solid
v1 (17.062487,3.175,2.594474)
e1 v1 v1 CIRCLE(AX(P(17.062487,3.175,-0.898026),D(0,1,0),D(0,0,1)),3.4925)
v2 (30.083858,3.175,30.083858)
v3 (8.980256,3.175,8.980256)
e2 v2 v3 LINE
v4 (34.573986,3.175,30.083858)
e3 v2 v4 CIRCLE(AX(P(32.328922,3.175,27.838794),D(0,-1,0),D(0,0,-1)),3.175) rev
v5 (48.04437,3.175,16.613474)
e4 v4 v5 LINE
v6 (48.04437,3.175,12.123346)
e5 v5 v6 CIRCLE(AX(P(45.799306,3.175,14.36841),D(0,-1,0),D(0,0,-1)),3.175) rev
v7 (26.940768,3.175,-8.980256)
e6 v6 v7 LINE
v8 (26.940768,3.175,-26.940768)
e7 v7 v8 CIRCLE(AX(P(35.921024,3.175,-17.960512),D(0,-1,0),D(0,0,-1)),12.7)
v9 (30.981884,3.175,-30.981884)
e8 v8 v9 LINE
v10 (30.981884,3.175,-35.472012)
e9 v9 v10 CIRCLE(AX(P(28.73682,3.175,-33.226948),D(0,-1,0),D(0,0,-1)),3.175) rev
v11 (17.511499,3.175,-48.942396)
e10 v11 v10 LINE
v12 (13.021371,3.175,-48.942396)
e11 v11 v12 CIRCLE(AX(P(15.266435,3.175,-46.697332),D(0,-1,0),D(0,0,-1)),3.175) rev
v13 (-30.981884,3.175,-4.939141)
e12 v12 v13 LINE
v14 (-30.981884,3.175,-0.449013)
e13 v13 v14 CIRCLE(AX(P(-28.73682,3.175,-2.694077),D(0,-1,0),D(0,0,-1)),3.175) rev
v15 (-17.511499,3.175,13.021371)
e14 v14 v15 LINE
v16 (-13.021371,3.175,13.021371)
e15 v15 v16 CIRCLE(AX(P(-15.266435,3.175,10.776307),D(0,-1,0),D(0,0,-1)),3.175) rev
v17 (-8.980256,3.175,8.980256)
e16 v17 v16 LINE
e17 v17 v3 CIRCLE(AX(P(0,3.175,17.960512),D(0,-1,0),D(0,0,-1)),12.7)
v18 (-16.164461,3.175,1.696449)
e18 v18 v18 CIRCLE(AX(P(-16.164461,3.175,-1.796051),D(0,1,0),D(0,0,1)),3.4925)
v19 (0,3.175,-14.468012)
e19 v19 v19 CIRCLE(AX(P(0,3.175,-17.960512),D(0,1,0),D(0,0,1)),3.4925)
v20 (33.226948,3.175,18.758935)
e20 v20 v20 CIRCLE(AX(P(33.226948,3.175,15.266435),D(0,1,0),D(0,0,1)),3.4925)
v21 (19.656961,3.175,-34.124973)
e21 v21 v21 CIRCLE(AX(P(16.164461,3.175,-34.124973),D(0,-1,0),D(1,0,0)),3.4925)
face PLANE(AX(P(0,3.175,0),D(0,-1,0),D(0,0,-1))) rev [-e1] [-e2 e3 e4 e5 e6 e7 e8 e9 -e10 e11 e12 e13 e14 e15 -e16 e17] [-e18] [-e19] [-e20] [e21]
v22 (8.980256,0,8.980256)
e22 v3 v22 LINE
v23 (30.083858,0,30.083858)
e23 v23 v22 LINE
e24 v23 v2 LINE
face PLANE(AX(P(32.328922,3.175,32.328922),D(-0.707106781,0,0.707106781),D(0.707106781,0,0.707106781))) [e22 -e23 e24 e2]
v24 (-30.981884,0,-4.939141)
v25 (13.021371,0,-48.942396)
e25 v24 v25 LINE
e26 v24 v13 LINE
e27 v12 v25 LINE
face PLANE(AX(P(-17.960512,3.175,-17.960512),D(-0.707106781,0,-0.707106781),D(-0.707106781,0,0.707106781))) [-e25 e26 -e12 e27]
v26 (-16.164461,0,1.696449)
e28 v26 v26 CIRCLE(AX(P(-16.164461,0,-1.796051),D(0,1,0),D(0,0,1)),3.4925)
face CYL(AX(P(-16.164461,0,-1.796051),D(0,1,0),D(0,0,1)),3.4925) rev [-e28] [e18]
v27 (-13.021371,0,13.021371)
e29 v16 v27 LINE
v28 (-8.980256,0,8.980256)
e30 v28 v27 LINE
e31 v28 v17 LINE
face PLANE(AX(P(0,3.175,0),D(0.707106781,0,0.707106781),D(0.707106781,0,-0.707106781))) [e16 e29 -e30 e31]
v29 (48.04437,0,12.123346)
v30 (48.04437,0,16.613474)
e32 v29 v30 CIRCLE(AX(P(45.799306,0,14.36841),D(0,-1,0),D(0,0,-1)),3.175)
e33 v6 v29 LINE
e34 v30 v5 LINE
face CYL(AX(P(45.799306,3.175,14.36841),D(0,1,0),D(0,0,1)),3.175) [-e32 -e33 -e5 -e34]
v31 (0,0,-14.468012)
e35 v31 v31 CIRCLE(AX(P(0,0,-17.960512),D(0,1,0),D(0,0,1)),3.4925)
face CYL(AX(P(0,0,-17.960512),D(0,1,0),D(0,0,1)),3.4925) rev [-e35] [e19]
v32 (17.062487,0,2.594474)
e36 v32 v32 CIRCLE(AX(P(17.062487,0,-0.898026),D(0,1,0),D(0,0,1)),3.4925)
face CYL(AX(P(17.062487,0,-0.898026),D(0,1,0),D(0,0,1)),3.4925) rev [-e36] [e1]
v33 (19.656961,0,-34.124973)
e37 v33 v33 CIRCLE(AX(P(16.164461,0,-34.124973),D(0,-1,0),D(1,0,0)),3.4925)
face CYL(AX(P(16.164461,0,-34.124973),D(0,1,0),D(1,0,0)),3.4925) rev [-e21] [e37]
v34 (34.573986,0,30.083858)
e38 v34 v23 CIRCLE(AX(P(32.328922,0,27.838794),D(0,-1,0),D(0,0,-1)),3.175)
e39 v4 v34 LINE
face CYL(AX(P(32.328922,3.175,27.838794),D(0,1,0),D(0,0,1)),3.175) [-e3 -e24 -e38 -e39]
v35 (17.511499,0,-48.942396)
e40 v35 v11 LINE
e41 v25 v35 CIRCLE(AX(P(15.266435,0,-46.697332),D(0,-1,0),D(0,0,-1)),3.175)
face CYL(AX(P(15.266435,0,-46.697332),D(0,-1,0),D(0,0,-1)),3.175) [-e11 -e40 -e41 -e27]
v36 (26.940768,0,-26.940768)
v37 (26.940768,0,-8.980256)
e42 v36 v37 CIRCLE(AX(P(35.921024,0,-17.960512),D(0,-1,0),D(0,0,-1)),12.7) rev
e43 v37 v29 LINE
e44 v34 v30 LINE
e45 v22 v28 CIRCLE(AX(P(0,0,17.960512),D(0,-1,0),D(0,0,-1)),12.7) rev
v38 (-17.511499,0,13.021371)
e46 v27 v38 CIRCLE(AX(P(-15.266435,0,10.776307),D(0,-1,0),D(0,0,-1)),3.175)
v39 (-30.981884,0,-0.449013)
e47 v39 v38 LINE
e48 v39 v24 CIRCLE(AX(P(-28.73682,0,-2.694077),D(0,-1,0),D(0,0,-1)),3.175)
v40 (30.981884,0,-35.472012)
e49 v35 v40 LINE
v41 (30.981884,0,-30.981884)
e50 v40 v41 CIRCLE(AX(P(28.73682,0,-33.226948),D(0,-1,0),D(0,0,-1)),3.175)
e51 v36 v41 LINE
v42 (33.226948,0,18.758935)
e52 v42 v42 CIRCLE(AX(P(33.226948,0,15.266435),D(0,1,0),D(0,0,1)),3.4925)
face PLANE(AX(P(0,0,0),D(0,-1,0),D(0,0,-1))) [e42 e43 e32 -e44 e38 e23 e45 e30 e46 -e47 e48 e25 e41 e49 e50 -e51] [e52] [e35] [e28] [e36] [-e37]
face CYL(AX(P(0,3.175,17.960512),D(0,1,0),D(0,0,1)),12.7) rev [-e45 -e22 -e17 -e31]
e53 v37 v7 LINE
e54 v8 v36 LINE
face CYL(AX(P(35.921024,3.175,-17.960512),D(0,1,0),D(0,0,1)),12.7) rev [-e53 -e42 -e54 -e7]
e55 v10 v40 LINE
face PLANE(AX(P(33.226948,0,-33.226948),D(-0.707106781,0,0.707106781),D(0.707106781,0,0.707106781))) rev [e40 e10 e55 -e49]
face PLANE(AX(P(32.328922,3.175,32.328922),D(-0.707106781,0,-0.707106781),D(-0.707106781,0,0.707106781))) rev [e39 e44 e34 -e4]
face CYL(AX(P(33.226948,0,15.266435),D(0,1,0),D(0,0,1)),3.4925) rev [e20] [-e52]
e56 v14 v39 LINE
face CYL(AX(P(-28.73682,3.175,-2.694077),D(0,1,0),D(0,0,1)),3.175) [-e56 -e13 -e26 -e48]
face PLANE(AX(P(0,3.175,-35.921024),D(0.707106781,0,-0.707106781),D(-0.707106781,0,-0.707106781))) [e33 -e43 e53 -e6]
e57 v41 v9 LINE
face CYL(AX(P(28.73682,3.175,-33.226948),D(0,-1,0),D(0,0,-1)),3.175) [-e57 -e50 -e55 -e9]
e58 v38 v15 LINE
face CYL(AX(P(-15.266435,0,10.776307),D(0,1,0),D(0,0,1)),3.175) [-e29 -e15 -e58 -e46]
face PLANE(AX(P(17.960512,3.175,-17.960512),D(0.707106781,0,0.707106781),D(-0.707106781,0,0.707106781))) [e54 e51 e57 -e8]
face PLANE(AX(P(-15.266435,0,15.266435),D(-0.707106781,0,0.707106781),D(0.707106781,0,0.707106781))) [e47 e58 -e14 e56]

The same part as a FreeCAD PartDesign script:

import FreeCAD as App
import Part
import Sketcher
Q = App.Units.Quantity


def edges_at(feature, points):
    """Names of the edges that pass closest to the given points."""
    edges = feature.Shape.Edges
    near = lambda p: min(range(len(edges)), key=lambda i: edges[i].distToShape(Part.Vertex(*p))[0])
    return sorted({f"Edge{near(p) + 1}" for p in points})

doc = App.newDocument("Part")
params = doc.addObject("Spreadsheet::Sheet", "Params")
for row, (alias, value) in enumerate([
    ("sketch1_length", "1 in"),
    ("sketch1_length2", "1.8 in"),
    ("sketch1_length3", "2.75 in"),
    ("pad1_length", "0.125 in"),
    ("sketch2_diameter", "0.275 in"),
    ("pocket1_length", "0.125 in"),
    ("linearpattern_pitch", "0.9 in"),
    ("sketch3_diameter", "0.275 in"),
    ("pocket2_length", "0.125 in"),
    ("linearpattern2_pitch", "0.9 in"),
    ("sketch4_length", "1 in"),
    ("sketch4_diameter", "0.275 in"),
    ("sketch4_length2", "0.9 in"),
    ("pocket3_length", "85.115332 mm"),
    ("fillet_radius", "0.5 in"),
    ("fillet2_radius", "0.125 in"),
], start=1):
    params.set(f"A{row}", alias)
    params.set(f"B{row}", "=" + value)
    params.setAlias(f"B{row}", alias)

body = doc.addObject("PartDesign::Body", "Body")

# Sketch on XZ plane
sketch1 = doc.addObject("Sketcher::SketchObject", "Sketch")
body.addObject(sketch1)
sketch1.AttachmentSupport = (doc.XZ_Plane, [""])
sketch1.MapMode = "FlatFace"
sketch1.addGeometry([
    Part.LineSegment(App.Vector(0, -35.921024, 0), App.Vector(-49.391409, 13.470384, 0)),  # 0
    Part.LineSegment(App.Vector(-49.391409, 13.470384, 0), App.Vector(-31.430896, 31.430896, 0)),  # 1
    Part.LineSegment(App.Vector(-31.430896, 31.430896, 0), App.Vector(0, 0, 0)),  # 2
    Part.LineSegment(App.Vector(0, 0, 0), App.Vector(32.328922, 32.328922, 0)),  # 3
    Part.LineSegment(App.Vector(32.328922, 32.328922, 0), App.Vector(50.289434, 14.36841, 0)),  # 4
    Part.LineSegment(App.Vector(50.289434, 14.36841, 0), App.Vector(0, -35.921024, 0)),  # 5
], False)
sketch1.addConstraint([
    Sketcher.Constraint("Coincident", 0, 2, 1, 1),
    Sketcher.Constraint("Coincident", 1, 2, 2, 1),
    Sketcher.Constraint("Coincident", 2, 2, 3, 1),
    Sketcher.Constraint("Coincident", 3, 2, 4, 1),
    Sketcher.Constraint("Coincident", 4, 2, 5, 1),
    Sketcher.Constraint("Coincident", 5, 2, 0, 1),
    Sketcher.Constraint("Coincident", 2, 2, -1, 1),
    Sketcher.Constraint("PointOnObject", 5, 2, -2),
    Sketcher.Constraint("Perpendicular", 0, 1),
    Sketcher.Constraint("Perpendicular", 1, 2),
    Sketcher.Constraint("Perpendicular", 2, 3),
    Sketcher.Constraint("Perpendicular", 3, 4),
    Sketcher.Constraint("Perpendicular", 4, 5),
    Sketcher.Constraint("Equal", 1, 4),
    Sketcher.Constraint("Distance", 1, Q("1 in")),
    Sketcher.Constraint("Distance", 3, Q("1.8 in")),
    Sketcher.Constraint("Distance", 0, Q("2.75 in")),
])
sketch1.setExpression("Constraints[14]", "Params.sketch1_length")
sketch1.setExpression("Constraints[15]", "Params.sketch1_length2")
sketch1.setExpression("Constraints[16]", "Params.sketch1_length3")
pad1 = doc.addObject("PartDesign::Pad", "Pad")
body.addObject(pad1)
pad1.Profile = sketch1
pad1.setExpression("Length", "Params.pad1_length")
pad1.Reversed = True

# Sketch on XZ plane
sketch2 = doc.addObject("Sketcher::SketchObject", "Sketch001")
body.addObject(sketch2)
sketch2.AttachmentSupport = (doc.XZ_Plane, [""])
sketch2.MapMode = "FlatFace"
sketch2.AttachmentOffset = App.Placement(App.Vector(0, 0, -0.125 * 25.4), App.Rotation())
sketch2.addGeometry(Part.Circle(App.Vector(-32.328922, 14.36841, 0), App.Vector(0, 0, 1), 3.4925), False)
sketch2.addConstraint([
    Sketcher.Constraint("Diameter", 0, Q("0.275 in")),
    Sketcher.Constraint("DistanceY", -1, 1, 0, 3, 14.36841),
    Sketcher.Constraint("DistanceX", 0, 3, -1, 1, 32.328922),
])
sketch2.setExpression("Constraints[0]", "Params.sketch2_diameter")
pocket1 = doc.addObject("PartDesign::Pocket", "Pocket")
body.addObject(pocket1)
pocket1.Profile = sketch2
pocket1.setExpression("Length", "Params.pocket1_length")
pocket1.Reversed = True
doc.recompute()

datumline = doc.addObject("PartDesign::Line", "DatumLine")
body.addObject(datumline)
datumline.Placement = App.Placement(App.Vector(0, 0, 0), App.Rotation(App.Vector(0, 0, 1), App.Vector(0.707106781, 0, -0.707106781)))
linearpattern = doc.addObject("PartDesign::LinearPattern", "LinearPattern")
body.addObject(linearpattern)
linearpattern.Originals = [pocket1]
linearpattern.Direction = (datumline, [""])
linearpattern.Mode = "offset"
linearpattern.setExpression("Offset", "Params.linearpattern_pitch")
linearpattern.Occurrences = 3
body.Tip = linearpattern

# Sketch on XZ plane
sketch3 = doc.addObject("Sketcher::SketchObject", "Sketch002")
body.addObject(sketch3)
sketch3.AttachmentSupport = (doc.XZ_Plane, [""])
sketch3.MapMode = "FlatFace"
sketch3.AttachmentOffset = App.Placement(App.Vector(0, 0, -0.125 * 25.4), App.Rotation())
sketch3.addGeometry(Part.Circle(App.Vector(33.226948, 15.266435, 0), App.Vector(0, 0, 1), 3.4925), False)
sketch3.addConstraint([
    Sketcher.Constraint("Diameter", 0, Q("0.275 in")),
    Sketcher.Constraint("DistanceX", -1, 1, 0, 3, 33.226948),
    Sketcher.Constraint("DistanceY", -1, 1, 0, 3, 15.266435),
])
sketch3.setExpression("Constraints[0]", "Params.sketch3_diameter")
pocket2 = doc.addObject("PartDesign::Pocket", "Pocket001")
body.addObject(pocket2)
pocket2.Profile = sketch3
pocket2.setExpression("Length", "Params.pocket2_length")
pocket2.Reversed = True
doc.recompute()

datumline2 = doc.addObject("PartDesign::Line", "DatumLine001")
body.addObject(datumline2)
datumline2.Placement = App.Placement(App.Vector(0, 0, 0), App.Rotation(App.Vector(0, 0, 1), App.Vector(-0.707106781, 0, -0.707106781)))
linearpattern2 = doc.addObject("PartDesign::LinearPattern", "LinearPattern001")
body.addObject(linearpattern2)
linearpattern2.Originals = [pocket2]
linearpattern2.Direction = (datumline2, [""])
linearpattern2.Mode = "offset"
linearpattern2.setExpression("Offset", "Params.linearpattern2_pitch")
linearpattern2.Occurrences = 2
body.Tip = linearpattern2
body2 = doc.addObject("PartDesign::Body", "Body001")
doc.recompute()

body2.BaseFeature = body
doc.recompute()

mirroring = doc.addObject("Part::Mirroring", "Mirroring")
mirroring.Source = body
mirroring.Base = App.Vector(8.980256, 0, -8.980256)
mirroring.Normal = App.Vector(-0.707106781, 0, 0.707106781)
body3 = doc.addObject("PartDesign::Body", "Body002")
body3.BaseFeature = mirroring
boolean = doc.addObject("PartDesign::Boolean", "Boolean")
body2.addObject(boolean)
boolean.Type = "Fuse"
boolean.addObjects([body3])
doc.recompute()

# Sketch on XZ plane
sketch4 = doc.addObject("Sketcher::SketchObject", "Sketch003")
body2.addObject(sketch4)
sketch4.AttachmentSupport = (doc.getObject("XZ_Plane001"), [""])
sketch4.MapMode = "FlatFace"
sketch4.AttachmentOffset = App.Placement(App.Vector(0, 0, -0.125 * 25.4), App.Rotation())
sketch4.addGeometry([
    Part.LineSegment(App.Vector(-15.266435, 15.266435, 0), App.Vector(-33.226948, -2.694077, 0)),  # 0
    Part.LineSegment(App.Vector(-33.226948, -2.694077, 0), App.Vector(-49.391409, 13.470384, 0)),  # 1
    Part.LineSegment(App.Vector(-49.391409, 13.470384, 0), App.Vector(-31.430896, 31.430896, 0)),  # 2
    Part.LineSegment(App.Vector(-31.430896, 31.430896, 0), App.Vector(-15.266435, 15.266435, 0)),  # 3
    Part.Circle(App.Vector(-32.328922, 14.36841, 0), App.Vector(0, 0, 1), 3.4925),  # 4
    Part.LineSegment(App.Vector(33.226948, -33.226948, 0), App.Vector(49.391409, -49.391409, 0)),  # 5
    Part.LineSegment(App.Vector(49.391409, -49.391409, 0), App.Vector(31.430896, -67.351921, 0)),  # 6
    Part.LineSegment(App.Vector(31.430896, -67.351921, 0), App.Vector(15.266435, -51.18746, 0)),  # 7
    Part.LineSegment(App.Vector(15.266435, -51.18746, 0), App.Vector(33.226948, -33.226948, 0)),  # 8
    Part.Circle(App.Vector(32.328922, -50.289434, 0), App.Vector(0, 0, 1), 3.4925),  # 9
], False)
sketch4.addConstraint([
    Sketcher.Constraint("Coincident", 0, 2, 1, 1),
    Sketcher.Constraint("Coincident", 1, 2, 2, 1),
    Sketcher.Constraint("Coincident", 2, 2, 3, 1),
    Sketcher.Constraint("Coincident", 3, 2, 0, 1),
    Sketcher.Constraint("Coincident", 5, 2, 6, 1),
    Sketcher.Constraint("Coincident", 6, 2, 7, 1),
    Sketcher.Constraint("Coincident", 7, 2, 8, 1),
    Sketcher.Constraint("Coincident", 8, 2, 5, 1),
    Sketcher.Constraint("Equal", 4, 9),
    Sketcher.Constraint("Perpendicular", 0, 1),
    Sketcher.Constraint("Perpendicular", 1, 2),
    Sketcher.Constraint("Perpendicular", 2, 3),
    Sketcher.Constraint("Parallel", 3, 5),
    Sketcher.Constraint("Perpendicular", 5, 6),
    Sketcher.Constraint("Perpendicular", 6, 7),
    Sketcher.Constraint("Perpendicular", 7, 8),
    Sketcher.Constraint("Equal", 3, 5),
    Sketcher.Constraint("Equal", 2, 6),
    Sketcher.Constraint("Distance", 0, Q("1 in")),
    Sketcher.Constraint("Diameter", 4, Q("0.275 in")),
    Sketcher.Constraint("Angle", 0, Q("-135 deg")),
    Sketcher.Constraint("Distance", 1, Q("0.9 in")),
    Sketcher.Constraint("DistanceY", -1, 1, 4, 3, 14.36841),
    Sketcher.Constraint("DistanceX", 1, 2, -1, 1, 49.391409),
    Sketcher.Constraint("DistanceX", -1, 1, 5, 2, 49.391409),
    Sketcher.Constraint("DistanceY", 5, 2, -1, 1, 49.391409),
    Sketcher.Constraint("DistanceX", 0, 2, 9, 3, 65.55587),
    Sketcher.Constraint("DistanceY", 9, 3, 1, 2, 63.759818),
    Sketcher.Constraint("DistanceY", 5, 2, 0, 2, 46.697332),
    Sketcher.Constraint("DistanceX", 4, 3, 5, 2, 81.720331),
])
sketch4.setExpression("Constraints[18]", "Params.sketch4_length")
sketch4.setExpression("Constraints[19]", "Params.sketch4_diameter")
sketch4.setExpression("Constraints[21]", "Params.sketch4_length2")
pocket3 = doc.addObject("PartDesign::Pocket", "Pocket002")
body2.addObject(pocket3)
pocket3.Profile = sketch4
pocket3.setExpression("Length", "Params.pocket3_length")
pocket3.Reversed = True
doc.recompute()

fillet = doc.addObject("PartDesign::Fillet", "Fillet")
body2.addObject(fillet)
fillet.Base = (pocket3, edges_at(pocket3, [(0, 1.587, 0), (17.961, 1.587, -17.961)]))
fillet.setExpression("Radius", "Params.fillet_radius")
doc.recompute()

fillet2 = doc.addObject("PartDesign::Fillet", "Fillet001")
body2.addObject(fillet2)
fillet2.Base = (fillet, edges_at(fillet, [
    (15.266, 1.587, -51.187),
    (33.227, 1.587, -33.227),
    (50.289, 1.587, 14.368),
    (32.329, 1.587, 32.329),
    (-33.227, 1.587, -2.694),
    (-15.266, 1.587, 15.266),
]))
fillet2.setExpression("Radius", "Params.fillet2_radius")
mirroring.Visibility = False

doc.recompute()
